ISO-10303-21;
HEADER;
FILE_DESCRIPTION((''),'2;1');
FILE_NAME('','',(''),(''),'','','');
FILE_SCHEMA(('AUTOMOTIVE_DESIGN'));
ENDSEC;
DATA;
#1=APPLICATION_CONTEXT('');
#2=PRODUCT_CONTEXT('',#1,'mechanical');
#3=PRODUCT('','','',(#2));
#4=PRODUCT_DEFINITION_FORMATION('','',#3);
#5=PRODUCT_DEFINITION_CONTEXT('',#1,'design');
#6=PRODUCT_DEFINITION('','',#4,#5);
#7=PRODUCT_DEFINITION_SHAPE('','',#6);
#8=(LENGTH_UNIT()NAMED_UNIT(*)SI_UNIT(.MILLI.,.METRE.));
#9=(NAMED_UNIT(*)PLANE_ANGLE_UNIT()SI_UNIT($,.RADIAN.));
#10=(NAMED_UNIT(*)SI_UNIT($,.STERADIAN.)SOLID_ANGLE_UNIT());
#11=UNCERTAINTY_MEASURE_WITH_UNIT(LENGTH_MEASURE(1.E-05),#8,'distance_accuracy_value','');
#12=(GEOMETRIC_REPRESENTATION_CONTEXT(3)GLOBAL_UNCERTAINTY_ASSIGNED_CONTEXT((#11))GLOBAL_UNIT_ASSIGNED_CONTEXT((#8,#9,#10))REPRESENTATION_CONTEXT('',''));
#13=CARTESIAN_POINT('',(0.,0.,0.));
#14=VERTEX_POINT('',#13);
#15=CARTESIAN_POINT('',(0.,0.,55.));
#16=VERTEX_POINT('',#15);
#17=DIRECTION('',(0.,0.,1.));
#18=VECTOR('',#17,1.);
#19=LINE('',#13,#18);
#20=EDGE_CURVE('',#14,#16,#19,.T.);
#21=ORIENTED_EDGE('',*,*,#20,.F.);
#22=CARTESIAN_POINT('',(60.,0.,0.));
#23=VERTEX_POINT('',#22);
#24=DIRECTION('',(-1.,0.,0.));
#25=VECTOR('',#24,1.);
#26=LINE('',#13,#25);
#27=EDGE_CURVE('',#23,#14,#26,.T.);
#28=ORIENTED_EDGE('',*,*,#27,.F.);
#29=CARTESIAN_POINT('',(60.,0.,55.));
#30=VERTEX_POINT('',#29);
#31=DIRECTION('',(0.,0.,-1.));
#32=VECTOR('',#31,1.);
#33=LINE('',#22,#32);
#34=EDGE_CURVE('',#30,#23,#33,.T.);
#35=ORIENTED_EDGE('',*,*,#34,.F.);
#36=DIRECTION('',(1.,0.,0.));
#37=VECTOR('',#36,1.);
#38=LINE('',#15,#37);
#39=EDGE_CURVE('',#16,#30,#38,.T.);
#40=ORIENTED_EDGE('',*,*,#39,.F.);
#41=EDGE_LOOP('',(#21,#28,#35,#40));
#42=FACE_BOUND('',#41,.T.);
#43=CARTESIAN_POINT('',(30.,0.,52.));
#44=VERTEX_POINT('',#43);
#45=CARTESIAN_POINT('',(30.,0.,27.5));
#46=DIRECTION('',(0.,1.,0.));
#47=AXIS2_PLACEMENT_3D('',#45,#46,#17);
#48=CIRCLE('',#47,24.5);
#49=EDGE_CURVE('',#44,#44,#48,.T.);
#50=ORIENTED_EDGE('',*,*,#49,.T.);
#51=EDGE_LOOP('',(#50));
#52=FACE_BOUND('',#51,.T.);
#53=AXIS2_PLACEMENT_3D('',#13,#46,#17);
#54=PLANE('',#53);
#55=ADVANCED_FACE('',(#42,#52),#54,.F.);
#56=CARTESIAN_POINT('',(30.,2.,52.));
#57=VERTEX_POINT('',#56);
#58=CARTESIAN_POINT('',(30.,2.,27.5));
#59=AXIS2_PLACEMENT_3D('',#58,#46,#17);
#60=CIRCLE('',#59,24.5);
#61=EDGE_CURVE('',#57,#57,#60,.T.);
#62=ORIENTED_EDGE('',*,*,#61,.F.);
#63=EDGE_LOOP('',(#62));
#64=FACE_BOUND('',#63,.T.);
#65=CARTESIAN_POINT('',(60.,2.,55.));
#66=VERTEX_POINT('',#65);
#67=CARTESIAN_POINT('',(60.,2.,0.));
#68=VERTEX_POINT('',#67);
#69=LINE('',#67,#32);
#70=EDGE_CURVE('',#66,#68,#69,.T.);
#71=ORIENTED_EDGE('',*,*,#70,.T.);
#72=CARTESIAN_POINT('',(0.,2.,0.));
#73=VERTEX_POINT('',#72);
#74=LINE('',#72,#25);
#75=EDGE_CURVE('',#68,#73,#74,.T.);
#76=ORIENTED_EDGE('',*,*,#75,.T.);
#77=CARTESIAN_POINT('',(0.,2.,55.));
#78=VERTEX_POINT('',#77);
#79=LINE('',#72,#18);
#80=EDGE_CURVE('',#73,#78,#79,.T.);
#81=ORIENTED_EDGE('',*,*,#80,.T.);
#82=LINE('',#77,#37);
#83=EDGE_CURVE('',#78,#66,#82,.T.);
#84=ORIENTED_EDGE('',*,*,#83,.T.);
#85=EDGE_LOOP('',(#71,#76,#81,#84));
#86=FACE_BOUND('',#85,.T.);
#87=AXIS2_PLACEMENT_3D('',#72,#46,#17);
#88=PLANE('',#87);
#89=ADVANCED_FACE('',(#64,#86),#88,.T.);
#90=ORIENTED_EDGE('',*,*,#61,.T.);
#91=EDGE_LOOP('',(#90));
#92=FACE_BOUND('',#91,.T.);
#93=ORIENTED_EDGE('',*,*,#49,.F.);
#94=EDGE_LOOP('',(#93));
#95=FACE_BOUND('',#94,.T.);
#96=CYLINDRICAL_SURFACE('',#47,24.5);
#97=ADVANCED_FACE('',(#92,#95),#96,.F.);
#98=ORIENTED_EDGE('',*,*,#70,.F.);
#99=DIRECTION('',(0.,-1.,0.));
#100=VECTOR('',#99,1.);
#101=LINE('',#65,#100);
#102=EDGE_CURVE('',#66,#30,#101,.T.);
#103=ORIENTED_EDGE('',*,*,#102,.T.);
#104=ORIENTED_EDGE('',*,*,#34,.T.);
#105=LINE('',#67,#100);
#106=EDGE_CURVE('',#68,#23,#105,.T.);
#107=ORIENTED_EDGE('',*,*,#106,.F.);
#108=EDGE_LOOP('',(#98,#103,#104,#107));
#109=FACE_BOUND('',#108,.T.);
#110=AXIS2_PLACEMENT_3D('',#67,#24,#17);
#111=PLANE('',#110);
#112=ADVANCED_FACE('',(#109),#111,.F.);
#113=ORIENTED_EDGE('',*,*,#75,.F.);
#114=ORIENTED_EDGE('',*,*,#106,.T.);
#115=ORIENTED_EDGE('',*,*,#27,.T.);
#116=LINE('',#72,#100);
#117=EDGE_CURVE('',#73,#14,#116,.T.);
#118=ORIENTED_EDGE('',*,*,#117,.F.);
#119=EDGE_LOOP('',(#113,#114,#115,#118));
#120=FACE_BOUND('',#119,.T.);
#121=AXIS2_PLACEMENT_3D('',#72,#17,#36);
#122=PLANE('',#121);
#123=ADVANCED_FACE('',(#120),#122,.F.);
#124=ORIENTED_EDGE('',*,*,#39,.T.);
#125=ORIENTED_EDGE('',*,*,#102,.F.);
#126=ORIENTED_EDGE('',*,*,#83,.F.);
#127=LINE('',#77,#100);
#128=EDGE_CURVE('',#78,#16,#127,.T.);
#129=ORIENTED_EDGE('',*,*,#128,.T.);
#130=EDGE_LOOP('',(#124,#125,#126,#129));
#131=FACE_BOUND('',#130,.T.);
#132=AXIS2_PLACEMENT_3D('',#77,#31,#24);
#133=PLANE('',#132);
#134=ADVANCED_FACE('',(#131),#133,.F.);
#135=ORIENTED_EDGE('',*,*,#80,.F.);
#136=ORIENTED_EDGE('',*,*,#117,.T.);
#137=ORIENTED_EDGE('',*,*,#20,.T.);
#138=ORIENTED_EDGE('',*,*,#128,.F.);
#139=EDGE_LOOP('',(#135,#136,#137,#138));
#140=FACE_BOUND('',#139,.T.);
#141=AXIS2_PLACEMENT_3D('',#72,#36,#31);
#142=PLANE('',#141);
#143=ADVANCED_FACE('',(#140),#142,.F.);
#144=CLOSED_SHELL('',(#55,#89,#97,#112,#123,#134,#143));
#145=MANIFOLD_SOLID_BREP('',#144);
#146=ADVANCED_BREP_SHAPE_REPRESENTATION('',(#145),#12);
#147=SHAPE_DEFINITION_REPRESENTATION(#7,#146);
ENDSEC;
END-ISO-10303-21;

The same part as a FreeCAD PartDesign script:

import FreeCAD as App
import Part
import Sketcher
Q = App.Units.Quantity


def add_polygon(sketch, points):
    """Adds a closed chain of lines whose ends are joined by coincident constraints."""
    first, n = sketch.GeometryCount, len(points)
    for a, b in zip(points, points[1:] + points[:1]):
        sketch.addGeometry(Part.LineSegment(App.Vector(*a, 0), App.Vector(*b, 0)), False)
    for i in range(n):
        sketch.addConstraint(Sketcher.Constraint("Coincident", first + i, 2, first + (i + 1) % n, 1))

doc = App.newDocument("Part")
params = doc.addObject("Spreadsheet::Sheet", "Params")
for row, (alias, value) in enumerate([
    ("sketch1_width", "60 mm"),
    ("sketch1_height", "55 mm"),
    ("pad1_length", "2 mm"),
    ("sketch2_diameter", "49 mm"),
    ("pocket1_length", "2 mm"),
], start=1):
    params.set(f"A{row}", alias)
    params.set(f"B{row}", "=" + value)
    params.setAlias(f"B{row}", alias)

body = doc.addObject("PartDesign::Body", "Body")

sketch1 = doc.addObject("Sketcher::SketchObject", "Sketch")
body.addObject(sketch1)
sketch1.AttachmentSupport = (doc.XZ_Plane, [""])
sketch1.MapMode = "FlatFace"
add_polygon(sketch1, [(0, 0), (0, 55), (60, 55), (60, 0)])
sketch1.addConstraint(Sketcher.Constraint("Vertical", 0))
sketch1.addConstraint(Sketcher.Constraint("Horizontal", 1))
sketch1.addConstraint(Sketcher.Constraint("Vertical", 2))
sketch1.addConstraint(Sketcher.Constraint("Horizontal", 3))
sketch1.addConstraint(Sketcher.Constraint("Coincident", 3, 2, -1, 1))
sketch1.addConstraint(Sketcher.Constraint("DistanceX", 1, 1, 1, 2, Q("60 mm")))
sketch1.addConstraint(Sketcher.Constraint("DistanceY", 0, 1, 0, 2, Q("55 mm")))
sketch1.setExpression("Constraints[9]", "Params.sketch1_width")
sketch1.setExpression("Constraints[10]", "Params.sketch1_height")
pad1 = doc.addObject("PartDesign::Pad", "Pad")
body.addObject(pad1)
pad1.Profile = sketch1
pad1.setExpression("Length", "Params.pad1_length")
pad1.Reversed = True

sketch2 = doc.addObject("Sketcher::SketchObject", "Sketch001")
body.addObject(sketch2)
sketch2.AttachmentSupport = (doc.XZ_Plane, [""])
sketch2.MapMode = "FlatFace"
sketch2.AttachmentOffset = App.Placement(App.Vector(0, 0, -2), App.Rotation())
sketch2.addGeometry(Part.Circle(App.Vector(30, 28, 0), App.Vector(0, 0, 1), 24), False)
sketch2.addConstraint(Sketcher.Constraint("Diameter", 0, Q("49 mm")))
sketch2.addConstraint(Sketcher.Constraint("DistanceX", -1, 1, 0, 3, Q("30 mm")))
sketch2.addConstraint(Sketcher.Constraint("DistanceY", -1, 1, 0, 3, Q("27.5 mm")))
sketch2.setExpression("Constraints[0]", "Params.sketch2_diameter")
pocket1 = doc.addObject("PartDesign::Pocket", "Pocket")
body.addObject(pocket1)
pocket1.Profile = sketch2
pocket1.setExpression("Length", "Params.pocket1_length")
pocket1.Reversed = True

doc.recompute()
